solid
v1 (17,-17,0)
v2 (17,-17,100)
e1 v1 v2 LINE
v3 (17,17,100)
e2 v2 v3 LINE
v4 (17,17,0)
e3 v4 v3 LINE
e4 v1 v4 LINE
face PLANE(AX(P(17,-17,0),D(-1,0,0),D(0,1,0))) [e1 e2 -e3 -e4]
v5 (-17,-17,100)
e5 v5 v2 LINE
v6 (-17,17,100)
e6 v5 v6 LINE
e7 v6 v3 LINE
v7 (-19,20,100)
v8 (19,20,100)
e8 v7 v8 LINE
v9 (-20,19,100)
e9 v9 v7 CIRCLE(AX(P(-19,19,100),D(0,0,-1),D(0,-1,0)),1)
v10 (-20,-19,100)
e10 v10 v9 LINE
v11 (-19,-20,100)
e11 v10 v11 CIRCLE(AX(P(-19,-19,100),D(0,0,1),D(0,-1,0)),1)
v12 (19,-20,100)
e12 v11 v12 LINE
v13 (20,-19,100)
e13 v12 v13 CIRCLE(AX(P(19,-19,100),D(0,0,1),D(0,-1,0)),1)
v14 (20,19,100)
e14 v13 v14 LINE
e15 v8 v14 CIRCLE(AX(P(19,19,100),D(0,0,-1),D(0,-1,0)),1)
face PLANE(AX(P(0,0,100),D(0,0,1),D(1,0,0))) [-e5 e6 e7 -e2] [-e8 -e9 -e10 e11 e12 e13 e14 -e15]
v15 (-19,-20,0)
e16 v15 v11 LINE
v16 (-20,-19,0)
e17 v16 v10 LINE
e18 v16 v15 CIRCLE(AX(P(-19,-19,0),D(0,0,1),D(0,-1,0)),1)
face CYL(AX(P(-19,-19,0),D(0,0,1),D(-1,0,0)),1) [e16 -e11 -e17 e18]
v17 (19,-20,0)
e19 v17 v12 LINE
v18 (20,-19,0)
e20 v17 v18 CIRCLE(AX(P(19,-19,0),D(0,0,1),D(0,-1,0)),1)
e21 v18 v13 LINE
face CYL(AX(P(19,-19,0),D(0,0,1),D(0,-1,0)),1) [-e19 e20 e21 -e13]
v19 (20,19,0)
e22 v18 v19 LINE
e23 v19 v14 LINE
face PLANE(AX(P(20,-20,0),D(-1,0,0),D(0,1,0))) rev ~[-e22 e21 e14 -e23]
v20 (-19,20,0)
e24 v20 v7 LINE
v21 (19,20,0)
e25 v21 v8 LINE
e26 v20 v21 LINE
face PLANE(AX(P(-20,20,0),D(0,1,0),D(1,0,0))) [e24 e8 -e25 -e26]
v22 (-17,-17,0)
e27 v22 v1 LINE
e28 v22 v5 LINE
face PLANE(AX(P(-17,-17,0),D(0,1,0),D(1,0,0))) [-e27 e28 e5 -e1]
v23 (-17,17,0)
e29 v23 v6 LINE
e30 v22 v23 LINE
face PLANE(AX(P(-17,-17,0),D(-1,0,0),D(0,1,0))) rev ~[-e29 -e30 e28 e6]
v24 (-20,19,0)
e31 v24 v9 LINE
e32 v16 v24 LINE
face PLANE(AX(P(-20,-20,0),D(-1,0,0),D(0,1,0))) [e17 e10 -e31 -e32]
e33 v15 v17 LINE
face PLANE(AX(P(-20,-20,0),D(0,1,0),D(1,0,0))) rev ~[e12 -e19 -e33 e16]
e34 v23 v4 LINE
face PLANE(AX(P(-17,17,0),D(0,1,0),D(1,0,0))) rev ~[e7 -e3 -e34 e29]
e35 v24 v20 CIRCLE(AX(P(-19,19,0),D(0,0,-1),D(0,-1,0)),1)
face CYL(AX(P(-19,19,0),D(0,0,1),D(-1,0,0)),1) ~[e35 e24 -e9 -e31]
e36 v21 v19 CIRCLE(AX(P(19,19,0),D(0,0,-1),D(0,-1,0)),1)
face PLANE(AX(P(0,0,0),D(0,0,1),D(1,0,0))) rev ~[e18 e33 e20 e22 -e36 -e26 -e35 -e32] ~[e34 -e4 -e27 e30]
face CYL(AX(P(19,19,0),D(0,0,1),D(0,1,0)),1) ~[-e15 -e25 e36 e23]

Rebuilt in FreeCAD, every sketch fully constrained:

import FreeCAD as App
import Part
import Sketcher

V = App.Vector


def edges_at(feature, points):
    """Names of the edges that pass closest to the given points."""
    edges = feature.Shape.Edges
    near = lambda p: min(range(len(edges)), key=lambda i: edges[i].distToShape(Part.Vertex(*p))[0])
    return sorted({f"Edge{near(p) + 1}" for p in points})

doc = App.newDocument("Part")
body = doc.addObject("PartDesign::Body", "Body")

sketch1 = doc.addObject("Sketcher::SketchObject", "Sketch")
body.addObject(sketch1)
sketch1.AttachmentSupport = (doc.XY_Plane, [""])
sketch1.MapMode = "FlatFace"
sketch1.addGeometry(Part.LineSegment(V(-20, 20, 0), V(-20, -20, 0)), False)
sketch1.addGeometry(Part.LineSegment(V(-20, -20, 0), V(20, -20, 0)), False)
sketch1.addGeometry(Part.LineSegment(V(20, -20, 0), V(20, 20, 0)), False)
sketch1.addGeometry(Part.LineSegment(V(20, 20, 0), V(-20, 20, 0)), False)
sketch1.addGeometry(Part.LineSegment(V(17, -17, 0), V(-17, -17, 0)), False)
sketch1.addGeometry(Part.LineSegment(V(-17, -17, 0), V(-17, 17, 0)), False)
sketch1.addGeometry(Part.LineSegment(V(-17, 17, 0), V(17, 17, 0)), False)
sketch1.addGeometry(Part.LineSegment(V(17, 17, 0), V(17, -17, 0)), False)
sketch1.addConstraint(Sketcher.Constraint("Coincident", 0, 2, 1, 1))
sketch1.addConstraint(Sketcher.Constraint("Coincident", 1, 2, 2, 1))
sketch1.addConstraint(Sketcher.Constraint("Coincident", 2, 2, 3, 1))
sketch1.addConstraint(Sketcher.Constraint("Coincident", 3, 2, 0, 1))
sketch1.addConstraint(Sketcher.Constraint("Coincident", 4, 2, 5, 1))
sketch1.addConstraint(Sketcher.Constraint("Coincident", 5, 2, 6, 1))
sketch1.addConstraint(Sketcher.Constraint("Coincident", 6, 2, 7, 1))
sketch1.addConstraint(Sketcher.Constraint("Coincident", 7, 2, 4, 1))
sketch1.addConstraint(Sketcher.Constraint("Vertical", 0))
sketch1.addConstraint(Sketcher.Constraint("Horizontal", 1))
sketch1.addConstraint(Sketcher.Constraint("Vertical", 2))
sketch1.addConstraint(Sketcher.Constraint("Horizontal", 3))
sketch1.addConstraint(Sketcher.Constraint("Horizontal", 4))
sketch1.addConstraint(Sketcher.Constraint("Vertical", 5))
sketch1.addConstraint(Sketcher.Constraint("Horizontal", 6))
sketch1.addConstraint(Sketcher.Constraint("Vertical", 7))
sketch1.addConstraint(Sketcher.Constraint("Symmetric", 0, 2, 2, 2, -1, 1))
sketch1.addConstraint(Sketcher.Constraint("Symmetric", 4, 2, 6, 2, -1, 1))
sketch1.addConstraint(Sketcher.Constraint("Equal", 3, 0))
sketch1.addConstraint(Sketcher.Constraint("Equal", 6, 5))
sketch1.addConstraint(Sketcher.Constraint("DistanceX", 1, 1, 1, 2, 40.0))
sketch1.addConstraint(Sketcher.Constraint("DistanceX", 4, 2, 4, 1, 34.0))
pad1 = doc.addObject("PartDesign::Pad", "Pad")
body.addObject(pad1)
pad1.Profile = sketch1
pad1.Length = 100
doc.recompute()

fillet = doc.addObject("PartDesign::Fillet", "Fillet")
body.addObject(fillet)
fillet.Base = (pad1, edges_at(pad1, [
    (20, -20, 50),
    (20, 20, 50),
    (-20, -20, 50),
    (-20, 20, 50),
]))
fillet.Radius = 1

doc.recompute()
